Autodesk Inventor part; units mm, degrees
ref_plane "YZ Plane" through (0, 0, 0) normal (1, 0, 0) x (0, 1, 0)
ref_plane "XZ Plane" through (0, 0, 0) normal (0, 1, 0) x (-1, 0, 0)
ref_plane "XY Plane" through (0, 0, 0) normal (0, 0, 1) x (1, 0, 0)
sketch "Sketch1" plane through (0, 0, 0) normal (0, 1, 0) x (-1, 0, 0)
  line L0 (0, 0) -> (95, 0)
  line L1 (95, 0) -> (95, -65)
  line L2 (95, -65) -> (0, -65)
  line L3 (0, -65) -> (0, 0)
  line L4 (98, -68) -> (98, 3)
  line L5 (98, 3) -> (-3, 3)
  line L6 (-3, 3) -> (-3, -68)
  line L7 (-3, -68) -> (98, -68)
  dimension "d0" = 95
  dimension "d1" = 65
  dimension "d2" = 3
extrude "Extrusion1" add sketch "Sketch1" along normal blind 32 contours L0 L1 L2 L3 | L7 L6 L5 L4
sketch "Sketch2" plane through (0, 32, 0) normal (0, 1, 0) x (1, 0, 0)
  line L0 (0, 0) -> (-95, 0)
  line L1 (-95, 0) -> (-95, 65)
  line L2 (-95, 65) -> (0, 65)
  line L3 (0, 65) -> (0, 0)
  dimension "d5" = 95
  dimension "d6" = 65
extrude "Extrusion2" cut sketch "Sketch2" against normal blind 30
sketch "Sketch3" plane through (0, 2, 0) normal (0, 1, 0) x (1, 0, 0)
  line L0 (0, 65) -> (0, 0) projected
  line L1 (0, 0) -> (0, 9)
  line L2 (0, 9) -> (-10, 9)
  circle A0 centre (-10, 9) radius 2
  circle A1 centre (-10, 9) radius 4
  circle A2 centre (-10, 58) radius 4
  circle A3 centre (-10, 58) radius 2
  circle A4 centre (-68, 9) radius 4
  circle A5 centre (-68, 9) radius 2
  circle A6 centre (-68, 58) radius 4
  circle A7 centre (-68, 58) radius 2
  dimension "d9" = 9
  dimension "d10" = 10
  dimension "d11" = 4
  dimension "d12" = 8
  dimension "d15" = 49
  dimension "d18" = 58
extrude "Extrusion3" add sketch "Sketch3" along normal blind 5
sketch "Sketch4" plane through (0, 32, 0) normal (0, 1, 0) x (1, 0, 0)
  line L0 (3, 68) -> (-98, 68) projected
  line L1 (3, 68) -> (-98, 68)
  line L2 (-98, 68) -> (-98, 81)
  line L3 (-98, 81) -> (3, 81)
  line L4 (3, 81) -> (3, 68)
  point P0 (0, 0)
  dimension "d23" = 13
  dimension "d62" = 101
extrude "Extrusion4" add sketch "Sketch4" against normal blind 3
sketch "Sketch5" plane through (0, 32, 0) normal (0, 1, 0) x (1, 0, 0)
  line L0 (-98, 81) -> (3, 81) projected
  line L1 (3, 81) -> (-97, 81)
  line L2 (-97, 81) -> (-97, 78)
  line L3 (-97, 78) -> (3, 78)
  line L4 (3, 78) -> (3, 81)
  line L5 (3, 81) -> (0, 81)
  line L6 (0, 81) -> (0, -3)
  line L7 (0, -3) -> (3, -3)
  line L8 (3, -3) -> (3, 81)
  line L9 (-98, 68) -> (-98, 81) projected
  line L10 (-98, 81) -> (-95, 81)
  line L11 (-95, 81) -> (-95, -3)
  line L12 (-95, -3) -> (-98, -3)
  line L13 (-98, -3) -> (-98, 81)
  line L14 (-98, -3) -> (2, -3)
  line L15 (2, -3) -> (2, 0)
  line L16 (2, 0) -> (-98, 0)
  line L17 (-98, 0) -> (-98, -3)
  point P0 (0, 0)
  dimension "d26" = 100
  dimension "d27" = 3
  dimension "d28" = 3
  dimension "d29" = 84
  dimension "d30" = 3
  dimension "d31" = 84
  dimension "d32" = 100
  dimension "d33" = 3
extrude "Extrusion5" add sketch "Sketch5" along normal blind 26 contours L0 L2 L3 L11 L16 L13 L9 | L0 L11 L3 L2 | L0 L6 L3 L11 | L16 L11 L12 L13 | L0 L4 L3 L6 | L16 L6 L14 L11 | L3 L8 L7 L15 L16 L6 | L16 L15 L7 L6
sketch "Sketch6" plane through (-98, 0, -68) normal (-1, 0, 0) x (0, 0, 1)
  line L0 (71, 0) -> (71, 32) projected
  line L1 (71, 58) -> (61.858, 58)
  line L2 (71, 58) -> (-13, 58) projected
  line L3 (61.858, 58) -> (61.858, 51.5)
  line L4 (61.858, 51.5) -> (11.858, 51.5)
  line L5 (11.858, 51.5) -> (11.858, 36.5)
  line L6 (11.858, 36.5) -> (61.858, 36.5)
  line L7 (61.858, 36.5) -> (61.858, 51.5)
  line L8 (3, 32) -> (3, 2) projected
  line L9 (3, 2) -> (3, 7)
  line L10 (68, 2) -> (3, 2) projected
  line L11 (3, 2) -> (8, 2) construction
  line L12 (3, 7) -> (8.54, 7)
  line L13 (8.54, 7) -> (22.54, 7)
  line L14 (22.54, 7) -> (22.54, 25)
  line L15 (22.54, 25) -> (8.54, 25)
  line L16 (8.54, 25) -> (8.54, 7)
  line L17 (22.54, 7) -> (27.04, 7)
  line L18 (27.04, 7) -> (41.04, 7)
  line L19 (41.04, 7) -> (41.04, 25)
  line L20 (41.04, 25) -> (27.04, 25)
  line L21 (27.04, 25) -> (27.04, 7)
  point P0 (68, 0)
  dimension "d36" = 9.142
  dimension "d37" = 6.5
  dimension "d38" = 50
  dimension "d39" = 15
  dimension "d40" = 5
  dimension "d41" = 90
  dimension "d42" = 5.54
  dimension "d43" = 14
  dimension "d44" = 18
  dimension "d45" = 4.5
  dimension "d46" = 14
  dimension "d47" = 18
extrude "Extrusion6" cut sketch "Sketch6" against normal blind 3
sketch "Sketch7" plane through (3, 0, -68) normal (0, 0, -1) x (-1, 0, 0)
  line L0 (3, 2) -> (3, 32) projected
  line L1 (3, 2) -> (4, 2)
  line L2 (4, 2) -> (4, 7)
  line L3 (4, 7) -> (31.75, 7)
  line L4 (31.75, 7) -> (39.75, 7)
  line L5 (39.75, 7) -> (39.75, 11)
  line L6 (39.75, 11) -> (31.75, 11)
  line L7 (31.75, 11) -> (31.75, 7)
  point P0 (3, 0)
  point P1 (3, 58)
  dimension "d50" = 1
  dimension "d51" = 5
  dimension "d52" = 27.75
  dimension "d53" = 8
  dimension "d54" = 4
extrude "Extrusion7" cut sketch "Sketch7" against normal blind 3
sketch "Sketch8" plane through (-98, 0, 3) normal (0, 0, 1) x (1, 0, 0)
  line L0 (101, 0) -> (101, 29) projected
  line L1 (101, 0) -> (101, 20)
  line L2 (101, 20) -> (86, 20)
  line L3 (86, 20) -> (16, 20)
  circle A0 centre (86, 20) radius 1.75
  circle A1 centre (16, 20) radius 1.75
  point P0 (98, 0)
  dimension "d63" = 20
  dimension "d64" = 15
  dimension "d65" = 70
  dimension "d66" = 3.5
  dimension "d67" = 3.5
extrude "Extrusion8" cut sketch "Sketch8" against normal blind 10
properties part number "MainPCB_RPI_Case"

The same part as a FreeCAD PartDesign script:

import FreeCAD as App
import Part
import Sketcher
from FreeCAD import Vector

doc = App.newDocument("Part")
params = doc.addObject("Spreadsheet::Sheet", "Params")
for row, (alias, value) in enumerate([
    ("sketch1_width", "101 mm"),
    ("sketch1_height", "71 mm"),
    ("pad1_length", "32 mm"),
    ("sketch2_width", "95 mm"),
    ("sketch2_height", "65 mm"),
    ("pocket1_length", "30 mm"),
    ("sketch3_diameter", "8 mm"),
    ("sketch3_diameter2", "4 mm"),
    ("pad2_length", "5 mm"),
    ("sketch4_width", "101 mm"),
    ("sketch4_height", "13 mm"),
    ("pad3_length", "3 mm"),
    ("sketch5_height", "84 mm"),
    ("sketch5_width", "101 mm"),
    ("pad4_length", "26 mm"),
    ("sketch6_width", "15 mm"),
    ("sketch6_width2", "18 mm"),
    ("sketch6_height", "50 mm"),
    ("sketch6_height2", "14 mm"),
    ("pocket2_length", "3 mm"),
    ("sketch7_width", "8 mm"),
    ("sketch7_height", "4 mm"),
    ("pocket3_length", "3 mm"),
    ("sketch8_diameter", "3.5 mm"),
    ("pocket4_length", "10 mm"),
], start=1):
    params.set(f"A{row}", alias)
    params.set(f"B{row}", "=" + value)
    params.setAlias(f"B{row}", alias)

body = doc.addObject("PartDesign::Body", "Body")

sketch1 = body.newObject("Sketcher::SketchObject", "Sketch")
sketch1.AttachmentSupport = (doc.getObject("XZ_Plane"), [""])
sketch1.MapMode = "FlatFace"
sketch1.addGeometry(Part.LineSegment(Vector(3, -68, 0), Vector(-98, -68, 0)), False)
sketch1.addGeometry(Part.LineSegment(Vector(-98, -68, 0), Vector(-98, 3, 0)), False)
sketch1.addGeometry(Part.LineSegment(Vector(-98, 3, 0), Vector(3, 3, 0)), False)
sketch1.addGeometry(Part.LineSegment(Vector(3, 3, 0), Vector(3, -68, 0)), False)
sketch1.addConstraint(Sketcher.Constraint("Coincident", 0, 2, 1, 1))
sketch1.addConstraint(Sketcher.Constraint("Coincident", 1, 2, 2, 1))
sketch1.addConstraint(Sketcher.Constraint("Coincident", 2, 2, 3, 1))
sketch1.addConstraint(Sketcher.Constraint("Coincident", 3, 2, 0, 1))
sketch1.addConstraint(Sketcher.Constraint("Horizontal", 0))
sketch1.addConstraint(Sketcher.Constraint("Vertical", 1))
sketch1.addConstraint(Sketcher.Constraint("Horizontal", 2))
sketch1.addConstraint(Sketcher.Constraint("Vertical", 3))
sketch1.addConstraint(Sketcher.Constraint("DistanceY", -1, 1, 1, 2, 3.0))
sketch1.addConstraint(Sketcher.Constraint("DistanceX", -1, 1, 2, 2, 3.0))
sketch1.addConstraint(Sketcher.Constraint("DistanceX", 0, 2, 0, 1, 101.0))
sketch1.addConstraint(Sketcher.Constraint("DistanceY", 1, 1, 1, 2, 71.0))
sketch1.setExpression("Constraints[10]", "Params.sketch1_width")
sketch1.setExpression("Constraints[11]", "Params.sketch1_height")
pad1 = body.newObject("PartDesign::Pad", "Pad")
pad1.Profile = sketch1
pad1.setExpression("Length", "Params.pad1_length")
pad1.Reversed = True

sketch2 = body.newObject("Sketcher::SketchObject", "Sketch001")
sketch2.AttachmentSupport = (doc.getObject("XZ_Plane"), [""])
sketch2.MapMode = "FlatFace"
sketch2.AttachmentOffset = App.Placement(Vector(0, 0, -32), App.Rotation())
sketch2.addGeometry(Part.LineSegment(Vector(-95, 0, 0), Vector(0, 0, 0)), False)
sketch2.addGeometry(Part.LineSegment(Vector(0, 0, 0), Vector(0, -65, 0)), False)
sketch2.addGeometry(Part.LineSegment(Vector(0, -65, 0), Vector(-95, -65, 0)), False)
sketch2.addGeometry(Part.LineSegment(Vector(-95, -65, 0), Vector(-95, 0, 0)), False)
sketch2.addConstraint(Sketcher.Constraint("Coincident", 0, 2, 1, 1))
sketch2.addConstraint(Sketcher.Constraint("Coincident", 1, 2, 2, 1))
sketch2.addConstraint(Sketcher.Constraint("Coincident", 2, 2, 3, 1))
sketch2.addConstraint(Sketcher.Constraint("Coincident", 3, 2, 0, 1))
sketch2.addConstraint(Sketcher.Constraint("Horizontal", 0))
sketch2.addConstraint(Sketcher.Constraint("Vertical", 1))
sketch2.addConstraint(Sketcher.Constraint("Horizontal", 2))
sketch2.addConstraint(Sketcher.Constraint("Vertical", 3))
sketch2.addConstraint(Sketcher.Constraint("Coincident", 0, 2, -1, 1))
sketch2.addConstraint(Sketcher.Constraint("DistanceX", 0, 1, 0, 2, 95.0))
sketch2.addConstraint(Sketcher.Constraint("DistanceY", 1, 2, 1, 1, 65.0))
sketch2.setExpression("Constraints[9]", "Params.sketch2_width")
sketch2.setExpression("Constraints[10]", "Params.sketch2_height")
pocket1 = body.newObject("PartDesign::Pocket", "Pocket")
pocket1.Profile = sketch2
pocket1.setExpression("Length", "Params.pocket1_length")
pocket1.Reversed = True

sketch3 = body.newObject("Sketcher::SketchObject", "Sketch002")
sketch3.AttachmentSupport = (doc.getObject("XZ_Plane"), [""])
sketch3.MapMode = "FlatFace"
sketch3.AttachmentOffset = App.Placement(Vector(0, 0, -2), App.Rotation())
sketch3.addGeometry(Part.Circle(Vector(-10, -9, 0), Vector(0, 0, 1), 4), False)
sketch3.addGeometry(Part.Circle(Vector(-10, -9, 0), Vector(0, 0, 1), 2), False)
sketch3.addGeometry(Part.Circle(Vector(-10, -58, 0), Vector(0, 0, 1), 4), False)
sketch3.addGeometry(Part.Circle(Vector(-10, -58, 0), Vector(0, 0, 1), 2), False)
sketch3.addGeometry(Part.Circle(Vector(-68, -9, 0), Vector(0, 0, 1), 4), False)
sketch3.addGeometry(Part.Circle(Vector(-68, -9, 0), Vector(0, 0, 1), 2), False)
sketch3.addGeometry(Part.Circle(Vector(-68, -58, 0), Vector(0, 0, 1), 4), False)
sketch3.addGeometry(Part.Circle(Vector(-68, -58, 0), Vector(0, 0, 1), 2), False)
sketch3.addConstraint(Sketcher.Constraint("Coincident", 1, 3, 0, 3))
sketch3.addConstraint(Sketcher.Constraint("Coincident", 3, 3, 2, 3))
sketch3.addConstraint(Sketcher.Constraint("Coincident", 5, 3, 4, 3))
sketch3.addConstraint(Sketcher.Constraint("Coincident", 7, 3, 6, 3))
sketch3.addConstraint(Sketcher.Constraint("Equal", 0, 2))
sketch3.addConstraint(Sketcher.Constraint("Equal", 1, 3))
sketch3.addConstraint(Sketcher.Constraint("Equal", 2, 4))
sketch3.addConstraint(Sketcher.Constraint("Equal", 3, 5))
sketch3.addConstraint(Sketcher.Constraint("Equal", 4, 6))
sketch3.addConstraint(Sketcher.Constraint("Equal", 5, 7))
sketch3.addConstraint(Sketcher.Constraint("Horizontal", 1, 3, 4, 3))
sketch3.addConstraint(Sketcher.Constraint("Horizontal", 3, 3, 6, 3))
sketch3.addConstraint(Sketcher.Constraint("Vertical", 1, 3, 2, 3))
sketch3.addConstraint(Sketcher.Constraint("Vertical", 5, 3, 6, 3))
sketch3.addConstraint(Sketcher.Constraint("Diameter", 0, 8.0))
sketch3.addConstraint(Sketcher.Constraint("Diameter", 1, 4.0))
sketch3.addConstraint(Sketcher.Constraint("DistanceX", 0, 3, -1, 1, 10.0))
sketch3.addConstraint(Sketcher.Constraint("DistanceY", 0, 3, -1, 1, 9.0))
sketch3.addConstraint(Sketcher.Constraint("DistanceY", 2, 3, -1, 1, 58.0))
sketch3.addConstraint(Sketcher.Constraint("DistanceX", 4, 3, 0, 3, 58.0))
sketch3.setExpression("Constraints[14]", "Params.sketch3_diameter")
sketch3.setExpression("Constraints[15]", "Params.sketch3_diameter2")
pad2 = body.newObject("PartDesign::Pad", "Pad001")
pad2.Profile = sketch3
pad2.setExpression("Length", "Params.pad2_length")
pad2.Reversed = True

sketch4 = body.newObject("Sketcher::SketchObject", "Sketch003")
sketch4.AttachmentSupport = (doc.getObject("XZ_Plane"), [""])
sketch4.MapMode = "FlatFace"
sketch4.AttachmentOffset = App.Placement(Vector(0, 0, -32), App.Rotation())
sketch4.addGeometry(Part.LineSegment(Vector(-98, -68, 0), Vector(3, -68, 0)), False)
sketch4.addGeometry(Part.LineSegment(Vector(3, -68, 0), Vector(3, -81, 0)), False)
sketch4.addGeometry(Part.LineSegment(Vector(3, -81, 0), Vector(-98, -81, 0)), False)
sketch4.addGeometry(Part.LineSegment(Vector(-98, -81, 0), Vector(-98, -68, 0)), False)
sketch4.addConstraint(Sketcher.Constraint("Coincident", 0, 2, 1, 1))
sketch4.addConstraint(Sketcher.Constraint("Coincident", 1, 2, 2, 1))
sketch4.addConstraint(Sketcher.Constraint("Coincident", 2, 2, 3, 1))
sketch4.addConstraint(Sketcher.Constraint("Coincident", 3, 2, 0, 1))
sketch4.addConstraint(Sketcher.Constraint("Horizontal", 0))
sketch4.addConstraint(Sketcher.Constraint("Vertical", 1))
sketch4.addConstraint(Sketcher.Constraint("Horizontal", 2))
sketch4.addConstraint(Sketcher.Constraint("Vertical", 3))
sketch4.addConstraint(Sketcher.Constraint("DistanceX", 0, 1, 0, 2, 101.0))
sketch4.addConstraint(Sketcher.Constraint("DistanceY", 1, 2, 1, 1, 13.0))
sketch4.addConstraint(Sketcher.Constraint("DistanceX", -1, 1, 0, 2, 3.0))
sketch4.addConstraint(Sketcher.Constraint("DistanceY", 0, 2, -1, 1, 68.0))
sketch4.setExpression("Constraints[8]", "Params.sketch4_width")
sketch4.setExpression("Constraints[9]", "Params.sketch4_height")
pad3 = body.newObject("PartDesign::Pad", "Pad002")
pad3.Profile = sketch4
pad3.setExpression("Length", "Params.pad3_length")

sketch5 = body.newObject("Sketcher::SketchObject", "Sketch004")
sketch5.AttachmentSupport = (doc.getObject("XZ_Plane"), [""])
sketch5.MapMode = "FlatFace"
sketch5.AttachmentOffset = App.Placement(Vector(0, 0, -32), App.Rotation())
sketch5.addGeometry(Part.LineSegment(Vector(-98, -81, 0), Vector(-98, 3, 0)), False)
sketch5.addGeometry(Part.LineSegment(Vector(-98, 3, 0), Vector(3, 3, 0)), False)
sketch5.addGeometry(Part.LineSegment(Vector(3, 3, 0), Vector(3, -81, 0)), False)
sketch5.addGeometry(Part.LineSegment(Vector(3, -81, 0), Vector(-98, -81, 0)), False)
sketch5.addGeometry(Part.LineSegment(Vector(-95, 0, 0), Vector(-95, -78, 0)), False)
sketch5.addGeometry(Part.LineSegment(Vector(-95, -78, 0), Vector(0, -78, 0)), False)
sketch5.addGeometry(Part.LineSegment(Vector(0, -78, 0), Vector(0, 0, 0)), False)
sketch5.addGeometry(Part.LineSegment(Vector(0, 0, 0), Vector(-95, 0, 0)), False)
sketch5.addConstraint(Sketcher.Constraint("Coincident", 0, 2, 1, 1))
sketch5.addConstraint(Sketcher.Constraint("Coincident", 1, 2, 2, 1))
sketch5.addConstraint(Sketcher.Constraint("Coincident", 2, 2, 3, 1))
sketch5.addConstraint(Sketcher.Constraint("Coincident", 3, 2, 0, 1))
sketch5.addConstraint(Sketcher.Constraint("Coincident", 4, 2, 5, 1))
sketch5.addConstraint(Sketcher.Constraint("Coincident", 5, 2, 6, 1))
sketch5.addConstraint(Sketcher.Constraint("Coincident", 6, 2, 7, 1))
sketch5.addConstraint(Sketcher.Constraint("Coincident", 7, 2, 4, 1))
sketch5.addConstraint(Sketcher.Constraint("Vertical", 0))
sketch5.addConstraint(Sketcher.Constraint("Horizontal", 1))
sketch5.addConstraint(Sketcher.Constraint("Vertical", 2))
sketch5.addConstraint(Sketcher.Constraint("Horizontal", 3))
sketch5.addConstraint(Sketcher.Constraint("Vertical", 4))
sketch5.addConstraint(Sketcher.Constraint("Horizontal", 5))
sketch5.addConstraint(Sketcher.Constraint("Vertical", 6))
sketch5.addConstraint(Sketcher.Constraint("Horizontal", 7))
sketch5.addConstraint(Sketcher.Constraint("Coincident", 6, 2, -1, 1))
sketch5.addConstraint(Sketcher.Constraint("DistanceY", 0, 1, 0, 2, 84.0))
sketch5.addConstraint(Sketcher.Constraint("DistanceY", -1, 1, 0, 2, 3.0))
sketch5.addConstraint(Sketcher.Constraint("DistanceX", -1, 1, 1, 2, 3.0))
sketch5.addConstraint(Sketcher.Constraint("DistanceX", 3, 2, 4, 2, 3.0))
sketch5.addConstraint(Sketcher.Constraint("DistanceY", 3, 2, 4, 2, 3.0))
sketch5.addConstraint(Sketcher.Constraint("DistanceX", 1, 1, 1, 2, 101.0))
sketch5.setExpression("Constraints[17]", "Params.sketch5_height")
sketch5.setExpression("Constraints[22]", "Params.sketch5_width")
pad4 = body.newObject("PartDesign::Pad", "Pad003")
pad4.Profile = sketch5
pad4.setExpression("Length", "Params.pad4_length")
pad4.Reversed = True

sketch6 = body.newObject("Sketcher::SketchObject", "Sketch005")
sketch6.AttachmentSupport = (doc.getObject("YZ_Plane"), [""])
sketch6.MapMode = "FlatFace"
sketch6.AttachmentOffset = App.Placement(Vector(0, 0, -98), App.Rotation())
sketch6.addGeometry(Part.LineSegment(Vector(36.5, -6.142, 0), Vector(51.5, -6.142, 0)), False)
sketch6.addGeometry(Part.LineSegment(Vector(51.5, -6.142, 0), Vector(51.5, -56.142, 0)), False)
sketch6.addGeometry(Part.LineSegment(Vector(51.5, -56.142, 0), Vector(36.5, -56.142, 0)), False)
sketch6.addGeometry(Part.LineSegment(Vector(36.5, -56.142, 0), Vector(36.5, -6.142, 0)), False)
sketch6.addGeometry(Part.LineSegment(Vector(25, -59.46, 0), Vector(7, -59.46, 0)), False)
sketch6.addGeometry(Part.LineSegment(Vector(7, -59.46, 0), Vector(7, -45.46, 0)), False)
sketch6.addGeometry(Part.LineSegment(Vector(7, -45.46, 0), Vector(25, -45.46, 0)), False)
sketch6.addGeometry(Part.LineSegment(Vector(25, -45.46, 0), Vector(25, -59.46, 0)), False)
sketch6.addGeometry(Part.LineSegment(Vector(25, -40.96, 0), Vector(7, -40.96, 0)), False)
sketch6.addGeometry(Part.LineSegment(Vector(7, -40.96, 0), Vector(7, -26.96, 0)), False)
sketch6.addGeometry(Part.LineSegment(Vector(7, -26.96, 0), Vector(25, -26.96, 0)), False)
sketch6.addGeometry(Part.LineSegment(Vector(25, -26.96, 0), Vector(25, -40.96, 0)), False)
sketch6.addConstraint(Sketcher.Constraint("Coincident", 0, 2, 1, 1))
sketch6.addConstraint(Sketcher.Constraint("Coincident", 1, 2, 2, 1))
sketch6.addConstraint(Sketcher.Constraint("Coincident", 2, 2, 3, 1))
sketch6.addConstraint(Sketcher.Constraint("Coincident", 3, 2, 0, 1))
sketch6.addConstraint(Sketcher.Constraint("Coincident", 4, 2, 5, 1))
sketch6.addConstraint(Sketcher.Constraint("Coincident", 5, 2, 6, 1))
sketch6.addConstraint(Sketcher.Constraint("Coincident", 6, 2, 7, 1))
sketch6.addConstraint(Sketcher.Constraint("Coincident", 7, 2, 4, 1))
sketch6.addConstraint(Sketcher.Constraint("Coincident", 8, 2, 9, 1))
sketch6.addConstraint(Sketcher.Constraint("Coincident", 9, 2, 10, 1))
sketch6.addConstraint(Sketcher.Constraint("Coincident", 10, 2, 11, 1))
sketch6.addConstraint(Sketcher.Constraint("Coincident", 11, 2, 8, 1))
sketch6.addConstraint(Sketcher.Constraint("Horizontal", 0))
sketch6.addConstraint(Sketcher.Constraint("Vertical", 1))
sketch6.addConstraint(Sketcher.Constraint("Horizontal", 2))
sketch6.addConstraint(Sketcher.Constraint("Vertical", 3))
sketch6.addConstraint(Sketcher.Constraint("Horizontal", 4))
sketch6.addConstraint(Sketcher.Constraint("Vertical", 5))
sketch6.addConstraint(Sketcher.Constraint("Horizontal", 6))
sketch6.addConstraint(Sketcher.Constraint("Vertical", 7))
sketch6.addConstraint(Sketcher.Constraint("Horizontal", 8))
sketch6.addConstraint(Sketcher.Constraint("Vertical", 9))
sketch6.addConstraint(Sketcher.Constraint("Horizontal", 10))
sketch6.addConstraint(Sketcher.Constraint("Vertical", 11))
sketch6.addConstraint(Sketcher.Constraint("Vertical", 5, 2, 8, 2))
sketch6.addConstraint(Sketcher.Constraint("Vertical", 7, 2, 10, 2))
sketch6.addConstraint(Sketcher.Constraint("Equal", 7, 9))
sketch6.addConstraint(Sketcher.Constraint("DistanceX", 0, 1, 0, 2, 15.0))
sketch6.addConstraint(Sketcher.Constraint("DistanceX", 4, 2, 4, 1, 18.0))
sketch6.addConstraint(Sketcher.Constraint("DistanceY", 1, 2, 1, 1, 50.0))
sketch6.addConstraint(Sketcher.Constraint("DistanceY", 5, 1, 5, 2, 14.0))
sketch6.addConstraint(Sketcher.Constraint("DistanceY", 5, 2, 8, 2, 4.5))
sketch6.addConstraint(Sketcher.Constraint("DistanceX", -1, 1, 4, 2, 7.0))
sketch6.addConstraint(Sketcher.Constraint("DistanceX", -1, 1, 0, 2, 51.5))
sketch6.addConstraint(Sketcher.Constraint("DistanceY", 4, 2, -1, 1, 59.46))
sketch6.addConstraint(Sketcher.Constraint("DistanceY", 0, 2, -1, 1, 6.142))
sketch6.setExpression("Constraints[27]", "Params.sketch6_width")
sketch6.setExpression("Constraints[28]", "Params.sketch6_width2")
sketch6.setExpression("Constraints[29]", "Params.sketch6_height")
sketch6.setExpression("Constraints[30]", "Params.sketch6_height2")
pocket2 = body.newObject("PartDesign::Pocket", "Pocket001")
pocket2.Profile = sketch6
pocket2.setExpression("Length", "Params.pocket2_length")
pocket2.Reversed = True

sketch7 = body.newObject("Sketcher::SketchObject", "Sketch006")
sketch7.AttachmentSupport = (doc.getObject("XY_Plane"), [""])
sketch7.MapMode = "FlatFace"
sketch7.AttachmentOffset = App.Placement(Vector(0, 0, -68), App.Rotation())
sketch7.addGeometry(Part.LineSegment(Vector(-28.75, 11, 0), Vector(-28.75, 7, 0)), False)
sketch7.addGeometry(Part.LineSegment(Vector(-28.75, 7, 0), Vector(-36.75, 7, 0)), False)
sketch7.addGeometry(Part.LineSegment(Vector(-36.75, 7, 0), Vector(-36.75, 11, 0)), False)
sketch7.addGeometry(Part.LineSegment(Vector(-36.75, 11, 0), Vector(-28.75, 11, 0)), False)
sketch7.addConstraint(Sketcher.Constraint("Coincident", 0, 2, 1, 1))
sketch7.addConstraint(Sketcher.Constraint("Coincident", 1, 2, 2, 1))
sketch7.addConstraint(Sketcher.Constraint("Coincident", 2, 2, 3, 1))
sketch7.addConstraint(Sketcher.Constraint("Coincident", 3, 2, 0, 1))
sketch7.addConstraint(Sketcher.Constraint("Vertical", 0))
sketch7.addConstraint(Sketcher.Constraint("Horizontal", 1))
sketch7.addConstraint(Sketcher.Constraint("Vertical", 2))
sketch7.addConstraint(Sketcher.Constraint("Horizontal", 3))
sketch7.addConstraint(Sketcher.Constraint("DistanceX", 1, 2, 1, 1, 8.0))
sketch7.addConstraint(Sketcher.Constraint("DistanceY", 0, 2, 0, 1, 4.0))
sketch7.addConstraint(Sketcher.Constraint("DistanceY", -1, 1, 0, 2, 7.0))
sketch7.addConstraint(Sketcher.Constraint("DistanceX", 0, 2, -1, 1, 28.75))
sketch7.setExpression("Constraints[8]", "Params.sketch7_width")
sketch7.setExpression("Constraints[9]", "Params.sketch7_height")
pocket3 = body.newObject("PartDesign::Pocket", "Pocket002")
pocket3.Profile = sketch7
pocket3.setExpression("Length", "Params.pocket3_length")
pocket3.Reversed = True

sketch8 = body.newObject("Sketcher::SketchObject", "Sketch007")
sketch8.AttachmentSupport = (doc.getObject("XY_Plane"), [""])
sketch8.MapMode = "FlatFace"
sketch8.AttachmentOffset = App.Placement(Vector(0, 0, 3), App.Rotation())
sketch8.addGeometry(Part.Circle(Vector(-12, 20, 0), Vector(0, 0, 1), 1.75), False)
sketch8.addGeometry(Part.Circle(Vector(-82, 20, 0), Vector(0, 0, 1), 1.75), False)
sketch8.addConstraint(Sketcher.Constraint("Equal", 0, 1))
sketch8.addConstraint(Sketcher.Constraint("Horizontal", 0, 3, 1, 3))
sketch8.addConstraint(Sketcher.Constraint("Diameter", 0, 3.5))
sketch8.addConstraint(Sketcher.Constraint("DistanceY", -1, 1, 0, 3, 20.0))
sketch8.addConstraint(Sketcher.Constraint("DistanceX", 1, 3, 0, 3, 70.0))
sketch8.addConstraint(Sketcher.Constraint("DistanceX", 0, 3, -1, 1, 12.0))
sketch8.setExpression("Constraints[2]", "Params.sketch8_diameter")
pocket4 = body.newObject("PartDesign::Pocket", "Pocket003")
pocket4.Profile = sketch8
pocket4.setExpression("Length", "Params.pocket4_length")

doc.recompute()
